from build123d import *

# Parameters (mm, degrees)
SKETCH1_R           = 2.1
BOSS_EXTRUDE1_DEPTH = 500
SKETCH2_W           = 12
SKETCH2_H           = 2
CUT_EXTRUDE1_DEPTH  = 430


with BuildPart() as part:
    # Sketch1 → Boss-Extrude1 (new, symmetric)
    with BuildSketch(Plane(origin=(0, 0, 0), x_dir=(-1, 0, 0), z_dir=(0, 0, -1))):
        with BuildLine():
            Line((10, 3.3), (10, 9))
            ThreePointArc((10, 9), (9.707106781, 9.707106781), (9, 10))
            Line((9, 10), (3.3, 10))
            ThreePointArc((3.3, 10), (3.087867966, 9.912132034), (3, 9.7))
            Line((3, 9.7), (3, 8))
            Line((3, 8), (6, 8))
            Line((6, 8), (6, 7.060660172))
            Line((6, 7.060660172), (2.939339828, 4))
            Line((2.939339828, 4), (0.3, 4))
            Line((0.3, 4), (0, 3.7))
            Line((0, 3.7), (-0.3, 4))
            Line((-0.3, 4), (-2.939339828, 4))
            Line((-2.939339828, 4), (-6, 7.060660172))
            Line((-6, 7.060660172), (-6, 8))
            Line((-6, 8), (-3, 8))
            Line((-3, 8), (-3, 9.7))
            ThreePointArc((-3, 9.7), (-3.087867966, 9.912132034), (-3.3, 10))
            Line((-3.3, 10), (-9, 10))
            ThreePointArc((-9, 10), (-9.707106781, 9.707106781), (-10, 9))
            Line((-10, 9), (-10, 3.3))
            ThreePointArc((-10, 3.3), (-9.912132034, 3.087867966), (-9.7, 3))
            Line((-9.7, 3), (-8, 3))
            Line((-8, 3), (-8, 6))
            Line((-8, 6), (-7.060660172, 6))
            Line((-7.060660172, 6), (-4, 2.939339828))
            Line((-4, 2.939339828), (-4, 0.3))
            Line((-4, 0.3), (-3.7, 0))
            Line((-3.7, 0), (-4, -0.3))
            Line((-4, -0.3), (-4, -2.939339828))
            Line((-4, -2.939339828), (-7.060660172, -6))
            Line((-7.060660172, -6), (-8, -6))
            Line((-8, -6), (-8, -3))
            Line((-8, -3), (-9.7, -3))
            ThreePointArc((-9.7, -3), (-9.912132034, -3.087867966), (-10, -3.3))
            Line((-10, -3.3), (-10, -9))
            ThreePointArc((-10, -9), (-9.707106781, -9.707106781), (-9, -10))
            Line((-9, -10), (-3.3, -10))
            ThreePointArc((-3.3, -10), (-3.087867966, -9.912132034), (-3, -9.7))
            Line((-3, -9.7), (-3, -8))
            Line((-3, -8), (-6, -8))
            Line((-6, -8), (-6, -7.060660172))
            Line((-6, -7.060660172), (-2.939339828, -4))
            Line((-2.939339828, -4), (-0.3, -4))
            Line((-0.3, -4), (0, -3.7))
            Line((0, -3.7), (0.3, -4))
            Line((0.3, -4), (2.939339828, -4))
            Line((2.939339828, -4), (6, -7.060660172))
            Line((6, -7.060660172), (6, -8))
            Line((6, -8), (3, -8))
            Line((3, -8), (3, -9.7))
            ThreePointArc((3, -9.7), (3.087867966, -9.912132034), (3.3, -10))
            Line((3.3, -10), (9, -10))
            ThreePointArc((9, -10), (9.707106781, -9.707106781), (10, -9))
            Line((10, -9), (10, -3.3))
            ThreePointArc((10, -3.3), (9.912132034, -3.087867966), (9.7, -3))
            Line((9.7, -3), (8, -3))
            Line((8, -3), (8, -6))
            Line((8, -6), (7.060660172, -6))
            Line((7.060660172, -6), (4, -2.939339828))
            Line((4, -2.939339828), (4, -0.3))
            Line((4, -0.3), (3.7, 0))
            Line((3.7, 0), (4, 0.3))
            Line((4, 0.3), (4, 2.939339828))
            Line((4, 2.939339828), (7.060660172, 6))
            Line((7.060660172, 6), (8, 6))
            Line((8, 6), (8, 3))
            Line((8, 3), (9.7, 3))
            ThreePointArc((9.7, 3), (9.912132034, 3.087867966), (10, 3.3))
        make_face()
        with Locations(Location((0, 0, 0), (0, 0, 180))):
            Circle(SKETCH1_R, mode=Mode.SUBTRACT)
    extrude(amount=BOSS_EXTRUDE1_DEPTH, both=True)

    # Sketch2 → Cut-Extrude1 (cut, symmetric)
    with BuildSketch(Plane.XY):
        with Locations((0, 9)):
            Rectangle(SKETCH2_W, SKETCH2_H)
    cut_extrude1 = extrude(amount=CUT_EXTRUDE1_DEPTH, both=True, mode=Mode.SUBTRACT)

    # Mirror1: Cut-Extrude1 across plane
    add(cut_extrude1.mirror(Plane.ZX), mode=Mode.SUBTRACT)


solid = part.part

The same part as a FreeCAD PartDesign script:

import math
import FreeCAD as App
import Part
import Sketcher

doc = App.newDocument("Part")
body = doc.addObject("PartDesign::Body", "Body")

sketch1 = body.newObject("Sketcher::SketchObject", "Sketch")
sketch1.AttachmentSupport = (doc.getObject("XY_Plane"), [""])
sketch1.MapMode = "FlatFace"
sketch1.addGeometry([
    Part.LineSegment(App.Vector(-10, 3.3, 0), App.Vector(-10, 9, 0)),
    Part.ArcOfCircle(Part.Circle(App.Vector(-9, 9, 0), App.Vector(0, 0, 1), 1), math.radians(90), math.radians(180)),
    Part.LineSegment(App.Vector(-9, 10, 0), App.Vector(-3.3, 10, 0)),
    Part.ArcOfCircle(Part.Circle(App.Vector(-3.3, 9.7, 0), App.Vector(0, 0, 1), 0.3), math.radians(0), math.radians(90)),
    Part.LineSegment(App.Vector(-3, 9.7, 0), App.Vector(-3, 8, 0)),
    Part.LineSegment(App.Vector(-3, 8, 0), App.Vector(-6, 8, 0)),
    Part.LineSegment(App.Vector(-6, 8, 0), App.Vector(-6, 7.06, 0)),
    Part.LineSegment(App.Vector(-6, 7.06, 0), App.Vector(-2.94, 4, 0)),
    Part.LineSegment(App.Vector(-2.94, 4, 0), App.Vector(-0.3, 4, 0)),
    Part.LineSegment(App.Vector(-0.3, 4, 0), App.Vector(0, 3.7, 0)),
    Part.LineSegment(App.Vector(0, 3.7, 0), App.Vector(0.3, 4, 0)),
    Part.LineSegment(App.Vector(0.3, 4, 0), App.Vector(2.94, 4, 0)),
    Part.LineSegment(App.Vector(2.94, 4, 0), App.Vector(6, 7.06, 0)),
    Part.LineSegment(App.Vector(6, 7.06, 0), App.Vector(6, 8, 0)),
    Part.LineSegment(App.Vector(6, 8, 0), App.Vector(3, 8, 0)),
    Part.LineSegment(App.Vector(3, 8, 0), App.Vector(3, 9.7, 0)),
    Part.ArcOfCircle(Part.Circle(App.Vector(3.3, 9.7, 0), App.Vector(0, 0, 1), 0.3), math.radians(90), math.radians(180)),
    Part.LineSegment(App.Vector(3.3, 10, 0), App.Vector(9, 10, 0)),
    Part.ArcOfCircle(Part.Circle(App.Vector(9, 9, 0), App.Vector(0, 0, 1), 1), math.radians(0), math.radians(90)),
    Part.LineSegment(App.Vector(10, 9, 0), App.Vector(10, 3.3, 0)),
    Part.ArcOfCircle(Part.Circle(App.Vector(9.7, 3.3, 0), App.Vector(0, 0, 1), 0.3), math.radians(-90), math.radians(0)),
    Part.LineSegment(App.Vector(9.7, 3, 0), App.Vector(8, 3, 0)),
    Part.LineSegment(App.Vector(8, 3, 0), App.Vector(8, 6, 0)),
    Part.LineSegment(App.Vector(8, 6, 0), App.Vector(7.06, 6, 0)),
    Part.LineSegment(App.Vector(7.06, 6, 0), App.Vector(4, 2.94, 0)),
    Part.LineSegment(App.Vector(4, 2.94, 0), App.Vector(4, 0.3, 0)),
    Part.LineSegment(App.Vector(4, 0.3, 0), App.Vector(3.7, 0, 0)),
    Part.LineSegment(App.Vector(3.7, 0, 0), App.Vector(4, -0.3, 0)),
    Part.LineSegment(App.Vector(4, -0.3, 0), App.Vector(4, -2.94, 0)),
    Part.LineSegment(App.Vector(4, -2.94, 0), App.Vector(7.06, -6, 0)),
    Part.LineSegment(App.Vector(7.06, -6, 0), App.Vector(8, -6, 0)),
    Part.LineSegment(App.Vector(8, -6, 0), App.Vector(8, -3, 0)),
    Part.LineSegment(App.Vector(8, -3, 0), App.Vector(9.7, -3, 0)),
    Part.ArcOfCircle(Part.Circle(App.Vector(9.7, -3.3, 0), App.Vector(0, 0, 1), 0.3), math.radians(0), math.radians(90)),
    Part.LineSegment(App.Vector(10, -3.3, 0), App.Vector(10, -9, 0)),
    Part.ArcOfCircle(Part.Circle(App.Vector(9, -9, 0), App.Vector(0, 0, 1), 1), math.radians(-90), math.radians(0)),
    Part.LineSegment(App.Vector(9, -10, 0), App.Vector(3.3, -10, 0)),
    Part.ArcOfCircle(Part.Circle(App.Vector(3.3, -9.7, 0), App.Vector(0, 0, 1), 0.3), math.radians(-180), math.radians(-90)),
    Part.LineSegment(App.Vector(3, -9.7, 0), App.Vector(3, -8, 0)),
    Part.LineSegment(App.Vector(3, -8, 0), App.Vector(6, -8, 0)),
    Part.LineSegment(App.Vector(6, -8, 0), App.Vector(6, -7.06, 0)),
    Part.LineSegment(App.Vector(6, -7.06, 0), App.Vector(2.94, -4, 0)),
    Part.LineSegment(App.Vector(2.94, -4, 0), App.Vector(0.3, -4, 0)),
    Part.LineSegment(App.Vector(0.3, -4, 0), App.Vector(0, -3.7, 0)),
    Part.LineSegment(App.Vector(0, -3.7, 0), App.Vector(-0.3, -4, 0)),
    Part.LineSegment(App.Vector(-0.3, -4, 0), App.Vector(-2.94, -4, 0)),
    Part.LineSegment(App.Vector(-2.94, -4, 0), App.Vector(-6, -7.06, 0)),
    Part.LineSegment(App.Vector(-6, -7.06, 0), App.Vector(-6, -8, 0)),
    Part.LineSegment(App.Vector(-6, -8, 0), App.Vector(-3, -8, 0)),
    Part.LineSegment(App.Vector(-3, -8, 0), App.Vector(-3, -9.7, 0)),
    Part.ArcOfCircle(Part.Circle(App.Vector(-3.3, -9.7, 0), App.Vector(0, 0, 1), 0.3), math.radians(-90), math.radians(0)),
    Part.LineSegment(App.Vector(-3.3, -10, 0), App.Vector(-9, -10, 0)),
    Part.ArcOfCircle(Part.Circle(App.Vector(-9, -9, 0), App.Vector(0, 0, 1), 1), math.radians(-180), math.radians(-90)),
    Part.LineSegment(App.Vector(-10, -9, 0), App.Vector(-10, -3.3, 0)),
    Part.ArcOfCircle(Part.Circle(App.Vector(-9.7, -3.3, 0), App.Vector(0, 0, 1), 0.3), math.radians(90), math.radians(180)),
    Part.LineSegment(App.Vector(-9.7, -3, 0), App.Vector(-8, -3, 0)),
    Part.LineSegment(App.Vector(-8, -3, 0), App.Vector(-8, -6, 0)),
    Part.LineSegment(App.Vector(-8, -6, 0), App.Vector(-7.06, -6, 0)),
    Part.LineSegment(App.Vector(-7.06, -6, 0), App.Vector(-4, -2.94, 0)),
    Part.LineSegment(App.Vector(-4, -2.94, 0), App.Vector(-4, -0.3, 0)),
    Part.LineSegment(App.Vector(-4, -0.3, 0), App.Vector(-3.7, 0, 0)),
    Part.LineSegment(App.Vector(-3.7, 0, 0), App.Vector(-4, 0.3, 0)),
    Part.LineSegment(App.Vector(-4, 0.3, 0), App.Vector(-4, 2.94, 0)),
    Part.LineSegment(App.Vector(-4, 2.94, 0), App.Vector(-7.06, 6, 0)),
    Part.LineSegment(App.Vector(-7.06, 6, 0), App.Vector(-8, 6, 0)),
    Part.LineSegment(App.Vector(-8, 6, 0), App.Vector(-8, 3, 0)),
    Part.LineSegment(App.Vector(-8, 3, 0), App.Vector(-9.7, 3, 0)),
    Part.ArcOfCircle(Part.Circle(App.Vector(-9.7, 3.3, 0), App.Vector(0, 0, 1), 0.3), math.radians(-180), math.radians(-90)),
    Part.Circle(App.Vector(0, 0, 0), App.Vector(0, 0, 1), 2.1),
], False)
sketch1.addConstraint([
    Sketcher.Constraint("Tangent", 0, 2, 1, 2),
    Sketcher.Constraint("Tangent", 1, 1, 2, 1),
    Sketcher.Constraint("Tangent", 2, 2, 3, 2),
    Sketcher.Constraint("Tangent", 3, 1, 4, 1),
    Sketcher.Constraint("Coincident", 4, 2, 5, 1),
    Sketcher.Constraint("Coincident", 5, 2, 6, 1),
    Sketcher.Constraint("Coincident", 6, 2, 7, 1),
    Sketcher.Constraint("Coincident", 7, 2, 8, 1),
    Sketcher.Constraint("Coincident", 8, 2, 9, 1),
    Sketcher.Constraint("Coincident", 9, 2, 10, 1),
    Sketcher.Constraint("Coincident", 10, 2, 11, 1),
    Sketcher.Constraint("Coincident", 11, 2, 12, 1),
    Sketcher.Constraint("Coincident", 12, 2, 13, 1),
    Sketcher.Constraint("Coincident", 13, 2, 14, 1),
    Sketcher.Constraint("Coincident", 14, 2, 15, 1),
    Sketcher.Constraint("Tangent", 15, 2, 16, 2),
    Sketcher.Constraint("Tangent", 16, 1, 17, 1),
    Sketcher.Constraint("Tangent", 17, 2, 18, 2),
    Sketcher.Constraint("Tangent", 18, 1, 19, 1),
    Sketcher.Constraint("Tangent", 19, 2, 20, 2),
    Sketcher.Constraint("Tangent", 20, 1, 21, 1),
    Sketcher.Constraint("Coincident", 21, 2, 22, 1),
    Sketcher.Constraint("Coincident", 22, 2, 23, 1),
    Sketcher.Constraint("Coincident", 23, 2, 24, 1),
    Sketcher.Constraint("Coincident", 24, 2, 25, 1),
    Sketcher.Constraint("Coincident", 25, 2, 26, 1),
    Sketcher.Constraint("Coincident", 26, 2, 27, 1),
    Sketcher.Constraint("Coincident", 27, 2, 28, 1),
    Sketcher.Constraint("Coincident", 28, 2, 29, 1),
    Sketcher.Constraint("Coincident", 29, 2, 30, 1),
    Sketcher.Constraint("Coincident", 30, 2, 31, 1),
    Sketcher.Constraint("Coincident", 31, 2, 32, 1),
    Sketcher.Constraint("Tangent", 32, 2, 33, 2),
    Sketcher.Constraint("Tangent", 33, 1, 34, 1),
    Sketcher.Constraint("Tangent", 34, 2, 35, 2),
    Sketcher.Constraint("Tangent", 35, 1, 36, 1),
    Sketcher.Constraint("Tangent", 36, 2, 37, 2),
    Sketcher.Constraint("Tangent", 37, 1, 38, 1),
    Sketcher.Constraint("Coincident", 38, 2, 39, 1),
    Sketcher.Constraint("Coincident", 39, 2, 40, 1),
    Sketcher.Constraint("Coincident", 40, 2, 41, 1),
    Sketcher.Constraint("Coincident", 41, 2, 42, 1),
    Sketcher.Constraint("Coincident", 42, 2, 43, 1),
    Sketcher.Constraint("Coincident", 43, 2, 44, 1),
    Sketcher.Constraint("Coincident", 44, 2, 45, 1),
    Sketcher.Constraint("Coincident", 45, 2, 46, 1),
    Sketcher.Constraint("Coincident", 46, 2, 47, 1),
    Sketcher.Constraint("Coincident", 47, 2, 48, 1),
    Sketcher.Constraint("Coincident", 48, 2, 49, 1),
    Sketcher.Constraint("Tangent", 49, 2, 50, 2),
    Sketcher.Constraint("Tangent", 50, 1, 51, 1),
    Sketcher.Constraint("Tangent", 51, 2, 52, 2),
    Sketcher.Constraint("Tangent", 52, 1, 53, 1),
    Sketcher.Constraint("Tangent", 53, 2, 54, 2),
    Sketcher.Constraint("Tangent", 54, 1, 55, 1),
    Sketcher.Constraint("Coincident", 55, 2, 56, 1),
    Sketcher.Constraint("Coincident", 56, 2, 57, 1),
    Sketcher.Constraint("Coincident", 57, 2, 58, 1),
    Sketcher.Constraint("Coincident", 58, 2, 59, 1),
    Sketcher.Constraint("Coincident", 59, 2, 60, 1),
    Sketcher.Constraint("Coincident", 60, 2, 61, 1),
    Sketcher.Constraint("Coincident", 61, 2, 62, 1),
    Sketcher.Constraint("Coincident", 62, 2, 63, 1),
    Sketcher.Constraint("Coincident", 63, 2, 64, 1),
    Sketcher.Constraint("Coincident", 64, 2, 65, 1),
    Sketcher.Constraint("Coincident", 65, 2, 66, 1),
    Sketcher.Constraint("Tangent", 66, 2, 67, 2),
    Sketcher.Constraint("Tangent", 67, 1, 0, 1),
    Sketcher.Constraint("Vertical", 0),
    Sketcher.Constraint("Horizontal", 2),
    Sketcher.Constraint("Vertical", 4),
    Sketcher.Constraint("Horizontal", 5),
    Sketcher.Constraint("Vertical", 6),
    Sketcher.Constraint("Horizontal", 8),
    Sketcher.Constraint("Horizontal", 11),
    Sketcher.Constraint("Vertical", 13),
    Sketcher.Constraint("Horizontal", 14),
    Sketcher.Constraint("Vertical", 15),
    Sketcher.Constraint("Horizontal", 17),
    Sketcher.Constraint("Vertical", 19),
    Sketcher.Constraint("Horizontal", 21),
    Sketcher.Constraint("Vertical", 22),
    Sketcher.Constraint("Horizontal", 23),
    Sketcher.Constraint("Vertical", 25),
    Sketcher.Constraint("Vertical", 28),
    Sketcher.Constraint("Horizontal", 30),
    Sketcher.Constraint("Vertical", 31),
    Sketcher.Constraint("Horizontal", 32),
    Sketcher.Constraint("Vertical", 34),
    Sketcher.Constraint("Horizontal", 36),
    Sketcher.Constraint("Vertical", 38),
    Sketcher.Constraint("Horizontal", 39),
    Sketcher.Constraint("Vertical", 40),
    Sketcher.Constraint("Horizontal", 42),
    Sketcher.Constraint("Horizontal", 45),
    Sketcher.Constraint("Vertical", 47),
    Sketcher.Constraint("Horizontal", 48),
    Sketcher.Constraint("Vertical", 49),
    Sketcher.Constraint("Horizontal", 51),
    Sketcher.Constraint("Vertical", 53),
    Sketcher.Constraint("Horizontal", 55),
    Sketcher.Constraint("Vertical", 56),
    Sketcher.Constraint("Horizontal", 57),
    Sketcher.Constraint("Vertical", 59),
    Sketcher.Constraint("Vertical", 62),
    Sketcher.Constraint("Horizontal", 64),
    Sketcher.Constraint("Vertical", 65),
    Sketcher.Constraint("Horizontal", 66),
    Sketcher.Constraint("Coincident", 68, 3, -1, 1),
    Sketcher.Constraint("Equal", 3, 16),
    Sketcher.Constraint("Equal", 1, 18),
    Sketcher.Constraint("Equal", 16, 20),
    Sketcher.Constraint("Equal", 20, 33),
    Sketcher.Constraint("Equal", 18, 35),
    Sketcher.Constraint("Equal", 33, 37),
    Sketcher.Constraint("Equal", 37, 50),
    Sketcher.Constraint("Equal", 35, 52),
    Sketcher.Constraint("Equal", 50, 54),
    Sketcher.Constraint("Equal", 54, 67),
    Sketcher.Constraint("Symmetric", 1, 3, 35, 3, -1, 1),
    Sketcher.Constraint("Symmetric", 16, 3, 50, 3, -1, 1),
    Sketcher.Constraint("Symmetric", 20, 3, 54, 3, -1, 1),
    Sketcher.Constraint("Symmetric", 4, 2, 38, 2, -1, 1),
    Sketcher.Constraint("Symmetric", 6, 2, 40, 2, -1, 1),
    Sketcher.Constraint("Symmetric", 7, 2, 41, 2, -1, 1),
    Sketcher.Constraint("Symmetric", 9, 2, 43, 2, -1, 1),
    Sketcher.Constraint("Symmetric", 10, 2, 44, 2, -1, 1),
    Sketcher.Constraint("Symmetric", 12, 2, 46, 2, -1, 1),
    Sketcher.Constraint("Symmetric", 22, 2, 56, 2, -1, 1),
    Sketcher.Constraint("Symmetric", 24, 2, 58, 2, -1, 1),
    Sketcher.Constraint("Symmetric", 26, 2, 60, 2, -1, 1),
    Sketcher.Constraint("Symmetric", 27, 2, 61, 2, -1, 1),
    Sketcher.Constraint("Symmetric", 29, 2, 63, 2, -1, 1),
    Sketcher.Constraint("Symmetric", 31, 2, 65, 2, -1, 1),
    Sketcher.Constraint("Symmetric", 3, 3, 16, 3, -2),
    Sketcher.Constraint("Symmetric", 33, 3, 54, 3, -2),
    Sketcher.Constraint("Symmetric", 8, 2, 10, 2, -2),
    Sketcher.Constraint("Symmetric", 6, 2, 12, 2, -2),
    Sketcher.Constraint("Symmetric", 30, 2, 56, 2, -2),
    Sketcher.Constraint("Symmetric", 28, 2, 58, 2, -2),
    Sketcher.Constraint("PointOnObject", 9, 2, -2),
    Sketcher.Constraint("PointOnObject", 26, 2, -1),
    Sketcher.Constraint("Parallel", 7, 9),
    Sketcher.Constraint("Perpendicular", 9, 10),
    Sketcher.Constraint("Parallel", 10, 12),
    Sketcher.Constraint("Parallel", 12, 24),
    Sketcher.Constraint("Parallel", 24, 26),
    Sketcher.Constraint("Perpendicular", 26, 27),
    Sketcher.Constraint("Parallel", 27, 29),
    Sketcher.Constraint("Parallel", 41, 43),
    Sketcher.Constraint("Parallel", 44, 46),
    Sketcher.Constraint("Parallel", 46, 58),
    Sketcher.Constraint("Parallel", 58, 60),
    Sketcher.Constraint("Parallel", 61, 63),
    Sketcher.Constraint("Horizontal", 5, 2, 13, 2),
    Sketcher.Constraint("Horizontal", 39, 2, 47, 2),
    Sketcher.Constraint("Equal", 51, 0),
    Sketcher.Constraint("Equal", 66, 4),
    Sketcher.Constraint("Equal", 64, 6),
    Sketcher.Constraint("Equal", 48, 22),
    Sketcher.Constraint("Equal", 45, 25),
    Sketcher.Constraint("Equal", 12, 24),
    Sketcher.Constraint("Equal", 10, 26),
    Sketcher.Constraint("Radius", 1, 1.0),
    Sketcher.Constraint("Diameter", 68, 4.2),
    Sketcher.Constraint("Radius", 3, 0.3),
    Sketcher.Constraint("DistanceX", 5, 2, 5, 1, 3.0),
    Sketcher.Constraint("DistanceX", 2, 1, 2, 2, 5.7),
    Sketcher.Constraint("DistanceX", 21, 2, 21, 1, 1.7),
    Sketcher.Constraint("DistanceX", 1, 3, -1, 1, 9.0),
    Sketcher.Constraint("DistanceY", -1, 1, 7, 2, 4.0),
    Sketcher.Constraint("DistanceX", 8, 2, -1, 1, 0.3),
    Sketcher.Constraint("DistanceX", 8, 1, 8, 2, 2.63934),
])
pad1 = body.newObject("PartDesign::Pad", "Pad")
pad1.Profile = sketch1
pad1.Length = 1000
pad1.Midplane = True

sketch2 = body.newObject("Sketcher::SketchObject", "Sketch001")
sketch2.AttachmentSupport = (doc.getObject("XY_Plane"), [""])
sketch2.MapMode = "FlatFace"
sketch2.addGeometry([
    Part.LineSegment(App.Vector(-6, 10, 0), App.Vector(-6, 8, 0)),
    Part.LineSegment(App.Vector(-6, 8, 0), App.Vector(6, 8, 0)),
    Part.LineSegment(App.Vector(6, 8, 0), App.Vector(6, 10, 0)),
    Part.LineSegment(App.Vector(6, 10, 0), App.Vector(-6, 10, 0)),
], False)
sketch2.addConstraint([
    Sketcher.Constraint("Coincident", 0, 2, 1, 1),
    Sketcher.Constraint("Coincident", 1, 2, 2, 1),
    Sketcher.Constraint("Coincident", 2, 2, 3, 1),
    Sketcher.Constraint("Coincident", 3, 2, 0, 1),
    Sketcher.Constraint("Vertical", 0),
    Sketcher.Constraint("Horizontal", 1),
    Sketcher.Constraint("Vertical", 2),
    Sketcher.Constraint("Horizontal", 3),
    Sketcher.Constraint("DistanceX", 1, 1, 1, 2, 12.0),
    Sketcher.Constraint("DistanceY", 0, 2, 0, 1, 2.0),
    Sketcher.Constraint("DistanceX", 0, 2, -1, 1, 6.0),
    Sketcher.Constraint("DistanceY", -1, 1, 0, 2, 8.0),
])
pocket1 = body.newObject("PartDesign::Pocket", "Pocket")
pocket1.Profile = sketch2
pocket1.Length = 860
pocket1.Midplane = True
doc.recompute()

mirrored = body.newObject("PartDesign::Mirrored", "Mirrored")
mirrored.Originals = [pocket1]
mirrored.MirrorPlane = (doc.getObject("XZ_Plane"), [""])
body.Tip = mirrored

doc.recompute()
